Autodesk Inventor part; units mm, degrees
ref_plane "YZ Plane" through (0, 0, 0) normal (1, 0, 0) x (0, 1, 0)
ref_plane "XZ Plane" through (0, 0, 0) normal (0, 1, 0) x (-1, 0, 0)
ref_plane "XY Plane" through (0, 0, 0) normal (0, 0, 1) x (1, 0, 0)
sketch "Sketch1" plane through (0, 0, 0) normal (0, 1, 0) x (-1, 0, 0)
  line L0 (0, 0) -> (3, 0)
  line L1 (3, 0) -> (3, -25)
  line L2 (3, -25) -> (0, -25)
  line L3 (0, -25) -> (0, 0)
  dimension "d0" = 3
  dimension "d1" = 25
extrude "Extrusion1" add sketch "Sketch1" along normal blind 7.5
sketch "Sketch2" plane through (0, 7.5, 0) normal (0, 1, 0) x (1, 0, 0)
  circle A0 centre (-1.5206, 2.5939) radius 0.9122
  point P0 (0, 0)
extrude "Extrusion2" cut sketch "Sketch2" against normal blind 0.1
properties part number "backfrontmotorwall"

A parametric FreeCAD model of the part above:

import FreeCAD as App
import Part
import Sketcher
from FreeCAD import Vector
Q = App.Units.Quantity


def add_polygon(sketch, points):
    """Adds a closed chain of lines whose ends are joined by coincident constraints."""
    first, n = sketch.GeometryCount, len(points)
    for a, b in zip(points, points[1:] + points[:1]):
        sketch.addGeometry(Part.LineSegment(App.Vector(*a, 0), App.Vector(*b, 0)), False)
    for i in range(n):
        sketch.addConstraint(Sketcher.Constraint("Coincident", first + i, 2, first + (i + 1) % n, 1))

doc = App.newDocument("Part")
body = doc.addObject("PartDesign::Body", "Body")

sketch1 = body.newObject("Sketcher::SketchObject", "Sketch")
sketch1.AttachmentSupport = (doc.getObject("XZ_Plane"), [""])
sketch1.MapMode = "FlatFace"
add_polygon(sketch1, [(-3, 0), (0, 0), (0, -25), (-3, -25)])
sketch1.addConstraint(Sketcher.Constraint("Horizontal", 0))
sketch1.addConstraint(Sketcher.Constraint("Vertical", 1))
sketch1.addConstraint(Sketcher.Constraint("Horizontal", 2))
sketch1.addConstraint(Sketcher.Constraint("Vertical", 3))
sketch1.addConstraint(Sketcher.Constraint("Coincident", 0, 2, -1, 1))
sketch1.addConstraint(Sketcher.Constraint("DistanceX", 0, 1, 0, 2, Q("3 mm")))
sketch1.addConstraint(Sketcher.Constraint("DistanceY", 1, 2, 1, 1, Q("25 mm")))
pad1 = body.newObject("PartDesign::Pad", "Pad")
pad1.Profile = sketch1
pad1.Length = 7.5
pad1.Reversed = True

sketch2 = body.newObject("Sketcher::SketchObject", "Sketch001")
sketch2.AttachmentSupport = (doc.getObject("XZ_Plane"), [""])
sketch2.MapMode = "FlatFace"
sketch2.AttachmentOffset = App.Placement(Vector(0, 0, -7.5), App.Rotation())
sketch2.addGeometry(Part.Circle(Vector(-1.5, -2.6, 0), Vector(0, 0, 1), 0.9), False)
sketch2.addConstraint(Sketcher.Constraint("Diameter", 0, Q("1.8244 mm")))
sketch2.addConstraint(Sketcher.Constraint("DistanceY", 0, 3, -1, 1, Q("2.594 mm")))
sketch2.addConstraint(Sketcher.Constraint("DistanceX", 0, 3, -1, 1, Q("1.5206 mm")))
pocket1 = body.newObject("PartDesign::Pocket", "Pocket")
pocket1.Profile = sketch2
pocket1.Length = 0.1
pocket1.Reversed = True

doc.recompute()
